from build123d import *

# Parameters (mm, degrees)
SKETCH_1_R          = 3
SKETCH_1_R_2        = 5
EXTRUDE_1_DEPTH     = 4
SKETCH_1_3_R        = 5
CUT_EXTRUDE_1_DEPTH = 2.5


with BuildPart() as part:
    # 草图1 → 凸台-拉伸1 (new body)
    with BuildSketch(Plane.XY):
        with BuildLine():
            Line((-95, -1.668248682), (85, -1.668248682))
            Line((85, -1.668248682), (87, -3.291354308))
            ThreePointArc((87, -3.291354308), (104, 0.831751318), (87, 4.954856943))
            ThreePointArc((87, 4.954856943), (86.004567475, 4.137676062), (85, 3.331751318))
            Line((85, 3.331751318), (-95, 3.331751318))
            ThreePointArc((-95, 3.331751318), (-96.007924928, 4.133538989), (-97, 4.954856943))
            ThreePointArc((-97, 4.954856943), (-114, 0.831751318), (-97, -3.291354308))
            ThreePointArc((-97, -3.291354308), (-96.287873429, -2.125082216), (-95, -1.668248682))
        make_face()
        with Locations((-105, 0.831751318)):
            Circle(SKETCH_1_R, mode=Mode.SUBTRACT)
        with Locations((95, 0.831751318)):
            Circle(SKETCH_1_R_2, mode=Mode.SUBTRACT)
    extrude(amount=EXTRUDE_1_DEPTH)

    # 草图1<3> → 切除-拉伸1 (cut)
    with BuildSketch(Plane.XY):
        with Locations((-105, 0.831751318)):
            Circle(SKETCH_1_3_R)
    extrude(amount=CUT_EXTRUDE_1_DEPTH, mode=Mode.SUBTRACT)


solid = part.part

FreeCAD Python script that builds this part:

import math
import FreeCAD as App
import Part
import Sketcher

doc = App.newDocument("Part")
params = doc.addObject("Spreadsheet::Sheet", "Params")
for row, (alias, value) in enumerate([
    ("sketch1_diameter", "6 mm"),
    ("sketch1_diameter2", "10 mm"),
    ("sketch1_radius", "9 mm"),
    ("sketch1_width", "180 mm"),
    ("pad1_length", "4 mm"),
    ("sketch2_diameter", "10 mm"),
    ("pocket1_length", "2.5 mm"),
], start=1):
    params.set(f"A{row}", alias)
    params.set(f"B{row}", "=" + value)
    params.setAlias(f"B{row}", alias)

body = doc.addObject("PartDesign::Body", "Body")

# Sketch on XY plane
sketch1 = body.newObject("Sketcher::SketchObject", "Sketch")
sketch1.AttachmentSupport = (doc.getObject("XY_Plane"), [""])
sketch1.MapMode = "FlatFace"
sketch1.addGeometry([
    Part.LineSegment(App.Vector(-95, -1.7, 0), App.Vector(85, -1.7, 0)),  # 0
    Part.LineSegment(App.Vector(85, -1.7, 0), App.Vector(87, -3.3, 0)),  # 1
    Part.ArcOfCircle(Part.Circle(App.Vector(95, 0.8, 0), App.Vector(0, 0, 1), 9), math.radians(-153), math.radians(153)),  # 2
    Part.ArcOfCircle(Part.Circle(App.Vector(13.9, 93, 0), App.Vector(0, 0, 1), 114.4), math.radians(-51.58), math.radians(-50.29)),  # 3
    Part.LineSegment(App.Vector(85, 3.3, 0), App.Vector(-95, 3.3, 0)),  # 4
    Part.ArcOfCircle(Part.Circle(App.Vector(-54.5, 55.3, 0), App.Vector(0, 0, 1), 65.9), math.radians(-130.18), math.radians(-127.94)),  # 5
    Part.ArcOfCircle(Part.Circle(App.Vector(-105, 0.8, 0), App.Vector(0, 0, 1), 9), math.radians(27), math.radians(333)),  # 6
    Part.ArcOfCircle(Part.Circle(App.Vector(-95, -3.7, 0), App.Vector(0, 0, 1), 2), math.radians(90), math.radians(168)),  # 7
    Part.Circle(App.Vector(-105, 0.8, 0), App.Vector(0, 0, 1), 3),  # 8
    Part.Circle(App.Vector(95, 0.8, 0), App.Vector(0, 0, 1), 5),  # 9
], False)
sketch1.addConstraint([
    Sketcher.Constraint("Coincident", 0, 2, 1, 1),
    Sketcher.Constraint("Coincident", 1, 2, 2, 1),
    Sketcher.Constraint("Coincident", 2, 2, 3, 2),
    Sketcher.Constraint("Coincident", 3, 1, 4, 1),
    Sketcher.Constraint("Coincident", 4, 2, 5, 2),
    Sketcher.Constraint("Coincident", 5, 1, 6, 1),
    Sketcher.Constraint("Coincident", 6, 2, 7, 2),
    Sketcher.Constraint("Tangent", 7, 1, 0, 1),
    Sketcher.Constraint("Horizontal", 0),
    Sketcher.Constraint("Horizontal", 4),
    Sketcher.Constraint("Coincident", 8, 3, 6, 3),
    Sketcher.Constraint("Coincident", 9, 3, 2, 3),
    Sketcher.Constraint("Equal", 2, 6),
    Sketcher.Constraint("Horizontal", 2, 3, 6, 3),
    Sketcher.Constraint("Horizontal", 2, 2, 5, 1),
    Sketcher.Constraint("Horizontal", 1, 2, 6, 2),
    Sketcher.Constraint("Vertical", 1, 2, 2, 2),
    Sketcher.Constraint("Vertical", 0, 2, 3, 1),
    Sketcher.Constraint("Vertical", 7, 3, 4, 2),
    Sketcher.Constraint("Diameter", 8, 6.0),
    Sketcher.Constraint("Diameter", 9, 10.0),
    Sketcher.Constraint("Radius", 2, 9.0),
    Sketcher.Constraint("DistanceX", 0, 1, 0, 2, 180.0),
    Sketcher.Constraint("DistanceX", -1, 1, 2, 3, 95.0),
    Sketcher.Constraint("DistanceX", 6, 3, -1, 1, 105.0),
    Sketcher.Constraint("DistanceX", 7, 3, -1, 1, 95.0),
    Sketcher.Constraint("DistanceX", -1, 1, 1, 2, 87.0),
    Sketcher.Constraint("DistanceY", 0, 2, 3, 1, 5.0),
    Sketcher.Constraint("DistanceY", 0, 2, 2, 3, 2.5),
    Sketcher.Constraint("Radius", 3, 114.418846),
    Sketcher.Constraint("Radius", 5, 65.948673),
    Sketcher.Constraint("DistanceY", -1, 1, 2, 3, 0.831751),
])
sketch1.setExpression("Constraints[19]", "Params.sketch1_diameter")
sketch1.setExpression("Constraints[20]", "Params.sketch1_diameter2")
sketch1.setExpression("Constraints[21]", "Params.sketch1_radius")
sketch1.setExpression("Constraints[22]", "Params.sketch1_width")
pad1 = body.newObject("PartDesign::Pad", "Pad")
pad1.Profile = sketch1
pad1.setExpression("Length", "Params.pad1_length")

# Sketch on XY plane
sketch2 = body.newObject("Sketcher::SketchObject", "Sketch001")
sketch2.AttachmentSupport = (doc.getObject("XY_Plane"), [""])
sketch2.MapMode = "FlatFace"
sketch2.addGeometry(Part.Circle(App.Vector(-105, 1, 0), App.Vector(0, 0, 1), 5), False)
sketch2.addConstraint([
    Sketcher.Constraint("Diameter", 0, 10.0),
    Sketcher.Constraint("DistanceX", 0, 3, -1, 1, 105.0),
    Sketcher.Constraint("DistanceY", -1, 1, 0, 3, 0.831751),
])
sketch2.setExpression("Constraints[0]", "Params.sketch2_diameter")
pocket1 = body.newObject("PartDesign::Pocket", "Pocket")
pocket1.Profile = sketch2
pocket1.setExpression("Length", "Params.pocket1_length")
pocket1.Reversed = True

doc.recompute()
